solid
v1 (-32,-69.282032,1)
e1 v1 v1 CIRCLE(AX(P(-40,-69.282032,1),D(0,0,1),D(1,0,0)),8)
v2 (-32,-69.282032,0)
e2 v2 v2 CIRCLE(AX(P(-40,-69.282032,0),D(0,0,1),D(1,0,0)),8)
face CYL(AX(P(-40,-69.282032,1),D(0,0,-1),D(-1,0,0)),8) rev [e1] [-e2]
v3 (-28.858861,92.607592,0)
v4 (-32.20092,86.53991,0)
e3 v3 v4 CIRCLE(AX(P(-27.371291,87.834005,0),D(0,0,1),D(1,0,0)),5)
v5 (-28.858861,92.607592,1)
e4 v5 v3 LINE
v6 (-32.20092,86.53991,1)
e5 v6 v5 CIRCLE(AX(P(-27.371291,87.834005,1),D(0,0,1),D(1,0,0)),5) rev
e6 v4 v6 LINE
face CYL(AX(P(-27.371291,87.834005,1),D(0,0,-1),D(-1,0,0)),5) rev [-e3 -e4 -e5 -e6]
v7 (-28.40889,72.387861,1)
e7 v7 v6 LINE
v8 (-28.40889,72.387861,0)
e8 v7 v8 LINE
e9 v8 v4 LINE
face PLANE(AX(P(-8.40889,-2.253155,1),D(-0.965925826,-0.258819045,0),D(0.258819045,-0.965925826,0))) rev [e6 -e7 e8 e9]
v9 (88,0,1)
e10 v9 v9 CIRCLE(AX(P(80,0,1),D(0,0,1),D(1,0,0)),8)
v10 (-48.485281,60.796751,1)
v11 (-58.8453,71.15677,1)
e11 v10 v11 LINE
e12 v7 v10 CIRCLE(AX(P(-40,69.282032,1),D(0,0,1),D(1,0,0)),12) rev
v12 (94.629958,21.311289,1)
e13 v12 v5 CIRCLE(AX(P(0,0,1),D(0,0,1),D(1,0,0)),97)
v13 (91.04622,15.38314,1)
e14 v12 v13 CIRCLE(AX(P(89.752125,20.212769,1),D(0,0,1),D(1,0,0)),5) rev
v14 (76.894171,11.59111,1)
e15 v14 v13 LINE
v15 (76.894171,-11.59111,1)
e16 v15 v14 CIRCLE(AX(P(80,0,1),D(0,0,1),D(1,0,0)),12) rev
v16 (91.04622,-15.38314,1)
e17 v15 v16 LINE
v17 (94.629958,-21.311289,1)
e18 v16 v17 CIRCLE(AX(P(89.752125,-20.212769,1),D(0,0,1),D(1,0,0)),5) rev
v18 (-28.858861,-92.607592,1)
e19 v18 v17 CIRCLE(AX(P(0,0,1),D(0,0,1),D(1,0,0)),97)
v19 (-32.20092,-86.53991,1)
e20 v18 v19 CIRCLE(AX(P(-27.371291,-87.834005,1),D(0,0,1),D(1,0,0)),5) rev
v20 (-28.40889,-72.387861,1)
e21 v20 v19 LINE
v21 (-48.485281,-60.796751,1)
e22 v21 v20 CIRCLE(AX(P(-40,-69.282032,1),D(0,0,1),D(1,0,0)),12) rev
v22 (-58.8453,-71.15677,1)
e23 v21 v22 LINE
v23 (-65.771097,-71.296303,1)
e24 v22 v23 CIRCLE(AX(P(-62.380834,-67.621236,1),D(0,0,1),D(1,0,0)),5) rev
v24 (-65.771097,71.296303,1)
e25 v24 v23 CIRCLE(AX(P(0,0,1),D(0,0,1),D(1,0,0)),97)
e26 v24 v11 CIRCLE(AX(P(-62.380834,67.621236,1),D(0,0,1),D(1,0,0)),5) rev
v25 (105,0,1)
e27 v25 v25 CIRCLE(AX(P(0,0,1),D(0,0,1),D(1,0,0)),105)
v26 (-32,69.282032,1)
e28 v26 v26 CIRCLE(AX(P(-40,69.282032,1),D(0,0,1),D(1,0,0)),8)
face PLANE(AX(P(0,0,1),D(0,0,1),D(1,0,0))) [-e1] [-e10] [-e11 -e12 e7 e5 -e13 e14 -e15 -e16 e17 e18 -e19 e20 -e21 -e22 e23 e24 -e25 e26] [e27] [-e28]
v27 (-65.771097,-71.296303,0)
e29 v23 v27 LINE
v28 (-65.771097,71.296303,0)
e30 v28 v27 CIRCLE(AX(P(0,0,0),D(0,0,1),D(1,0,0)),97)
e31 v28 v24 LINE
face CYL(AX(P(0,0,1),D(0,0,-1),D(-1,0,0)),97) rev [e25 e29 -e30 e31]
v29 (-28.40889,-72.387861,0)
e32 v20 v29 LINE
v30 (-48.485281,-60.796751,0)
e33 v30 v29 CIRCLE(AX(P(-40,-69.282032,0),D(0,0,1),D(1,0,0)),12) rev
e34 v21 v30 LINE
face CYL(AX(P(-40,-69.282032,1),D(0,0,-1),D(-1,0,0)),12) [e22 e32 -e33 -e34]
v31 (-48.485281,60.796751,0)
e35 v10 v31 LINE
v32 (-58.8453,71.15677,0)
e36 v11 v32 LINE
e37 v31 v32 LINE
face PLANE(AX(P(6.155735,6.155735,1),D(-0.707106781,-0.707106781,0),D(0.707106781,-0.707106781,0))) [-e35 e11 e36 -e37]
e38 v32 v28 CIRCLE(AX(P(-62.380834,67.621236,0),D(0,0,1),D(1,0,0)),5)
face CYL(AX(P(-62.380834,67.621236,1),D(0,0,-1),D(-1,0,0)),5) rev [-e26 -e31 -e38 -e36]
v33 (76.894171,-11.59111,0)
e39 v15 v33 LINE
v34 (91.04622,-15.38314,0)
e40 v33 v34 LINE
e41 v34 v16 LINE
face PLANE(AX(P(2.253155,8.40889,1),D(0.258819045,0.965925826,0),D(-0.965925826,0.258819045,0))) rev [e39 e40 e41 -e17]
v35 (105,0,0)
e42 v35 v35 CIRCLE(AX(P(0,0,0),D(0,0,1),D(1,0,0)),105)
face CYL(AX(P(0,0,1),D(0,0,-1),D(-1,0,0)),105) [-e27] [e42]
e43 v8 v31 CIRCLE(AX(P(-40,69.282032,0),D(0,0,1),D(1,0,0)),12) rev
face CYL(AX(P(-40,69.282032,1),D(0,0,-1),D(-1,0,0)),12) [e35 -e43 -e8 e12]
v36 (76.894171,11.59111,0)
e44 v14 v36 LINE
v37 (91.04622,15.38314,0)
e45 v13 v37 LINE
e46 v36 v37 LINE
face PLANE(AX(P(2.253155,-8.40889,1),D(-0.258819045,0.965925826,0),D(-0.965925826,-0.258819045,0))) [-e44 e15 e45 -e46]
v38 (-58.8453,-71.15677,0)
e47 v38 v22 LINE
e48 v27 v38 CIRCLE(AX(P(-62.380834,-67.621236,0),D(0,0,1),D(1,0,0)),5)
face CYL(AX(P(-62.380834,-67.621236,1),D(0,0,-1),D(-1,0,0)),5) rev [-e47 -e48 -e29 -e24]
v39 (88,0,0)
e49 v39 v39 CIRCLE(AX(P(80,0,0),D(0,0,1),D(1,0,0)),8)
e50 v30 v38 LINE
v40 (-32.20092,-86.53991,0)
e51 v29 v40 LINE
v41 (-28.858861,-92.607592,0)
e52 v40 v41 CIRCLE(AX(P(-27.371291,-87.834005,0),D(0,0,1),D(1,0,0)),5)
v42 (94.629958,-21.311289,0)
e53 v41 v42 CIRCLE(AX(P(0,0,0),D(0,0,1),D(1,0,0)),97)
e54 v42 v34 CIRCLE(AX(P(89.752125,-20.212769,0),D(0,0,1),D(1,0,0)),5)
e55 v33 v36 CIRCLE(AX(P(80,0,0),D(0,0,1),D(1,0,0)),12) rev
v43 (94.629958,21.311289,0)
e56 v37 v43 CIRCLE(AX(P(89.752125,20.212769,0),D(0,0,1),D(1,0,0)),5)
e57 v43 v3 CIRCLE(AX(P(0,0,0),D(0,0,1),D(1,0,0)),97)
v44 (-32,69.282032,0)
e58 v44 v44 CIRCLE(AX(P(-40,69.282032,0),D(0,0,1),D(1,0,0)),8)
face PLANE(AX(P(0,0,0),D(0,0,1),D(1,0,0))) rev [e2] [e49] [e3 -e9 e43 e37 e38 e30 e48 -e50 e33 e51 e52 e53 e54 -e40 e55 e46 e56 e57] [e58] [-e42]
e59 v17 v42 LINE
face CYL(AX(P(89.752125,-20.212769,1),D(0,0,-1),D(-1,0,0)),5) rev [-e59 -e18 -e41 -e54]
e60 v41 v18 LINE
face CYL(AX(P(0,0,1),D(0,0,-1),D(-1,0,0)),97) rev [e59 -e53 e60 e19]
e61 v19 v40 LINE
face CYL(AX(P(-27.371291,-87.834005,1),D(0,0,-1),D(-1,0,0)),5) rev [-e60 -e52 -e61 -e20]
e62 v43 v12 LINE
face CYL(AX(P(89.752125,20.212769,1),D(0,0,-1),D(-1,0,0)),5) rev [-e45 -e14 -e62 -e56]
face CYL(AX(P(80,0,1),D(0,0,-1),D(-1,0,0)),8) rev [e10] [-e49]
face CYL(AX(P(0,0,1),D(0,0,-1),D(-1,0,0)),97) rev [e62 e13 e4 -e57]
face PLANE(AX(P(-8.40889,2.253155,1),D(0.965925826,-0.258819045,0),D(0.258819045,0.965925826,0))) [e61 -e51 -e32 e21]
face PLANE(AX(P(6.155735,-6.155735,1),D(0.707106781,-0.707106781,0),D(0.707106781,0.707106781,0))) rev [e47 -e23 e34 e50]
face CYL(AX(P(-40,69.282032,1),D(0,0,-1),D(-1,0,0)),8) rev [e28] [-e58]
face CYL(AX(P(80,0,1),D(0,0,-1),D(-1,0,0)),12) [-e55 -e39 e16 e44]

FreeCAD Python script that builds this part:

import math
import FreeCAD as App
import Part
import Sketcher

V = App.Vector
Q = App.Units.Quantity


def edges_at(feature, points):
    """Names of the edges that pass closest to the given points."""
    edges = feature.Shape.Edges
    near = lambda p: min(range(len(edges)), key=lambda i: edges[i].distToShape(Part.Vertex(*p))[0])
    return sorted({f"Edge{near(p) + 1}" for p in points})

doc = App.newDocument("Part")
body = doc.addObject("PartDesign::Body", "Body")

# Sketch on XY plane
sketch1 = body.newObject("Sketcher::SketchObject", "Sketch")
sketch1.AttachmentSupport = (doc.getObject("XY_Plane"), [""])
sketch1.MapMode = "FlatFace"
sketch1.addGeometry([
    Part.Circle(V(0, 0, 0), V(0, 0, 1), 105),  # 0
    Part.Circle(V(-40, -69.282032, 0), V(0, 0, 1), 8),  # 1
    Part.Circle(V(-40, 69.282032, 0), V(0, 0, 1), 8),  # 2
    Part.ArcOfCircle(Part.Circle(V(0, 0, 0), V(0, 0, 1), 97), math.radians(9.850909), math.radians(110.149091)),  # 3
    Part.LineSegment(V(95.569858, 16.595245, 0), V(76.894171, 11.59111, 0)),  # 4
    Part.ArcOfCircle(Part.Circle(V(80, 0, 0), V(0, 0, 1), 12), math.radians(105), math.radians(255)),  # 5
    Part.LineSegment(V(76.894171, -11.59111, 0), V(95.569858, -16.595245, 0)),  # 6
    Part.ArcOfCircle(Part.Circle(V(0, 0, 0), V(0, 0, 1), 97), math.radians(-110.149091), math.radians(-9.850909)),  # 7
    Part.LineSegment(V(-33.413025, -91.063548, 0), V(-28.40889, -72.387861, 0)),  # 8
    Part.ArcOfCircle(Part.Circle(V(-40, -69.282032, 0), V(0, 0, 1), 12), math.radians(-15), math.radians(135)),  # 9
    Part.LineSegment(V(-48.485281, -60.796751, 0), V(-62.156833, -74.468303, 0)),  # 10
    Part.ArcOfCircle(Part.Circle(V(0, 0, 0), V(0, 0, 1), 97), math.radians(129.850909), math.radians(230.149091)),  # 11
    Part.LineSegment(V(-62.156833, 74.468303, 0), V(-48.485281, 60.796751, 0)),  # 12
    Part.ArcOfCircle(Part.Circle(V(-40, 69.282032, 0), V(0, 0, 1), 12), math.radians(-135), math.radians(15)),  # 13
    Part.LineSegment(V(-28.40889, 72.387861, 0), V(-33.413025, 91.063548, 0)),  # 14
    Part.Circle(V(80, 0, 0), V(0, 0, 1), 8),  # 15
], False)
sketch1.addConstraint([
    Sketcher.Constraint("Coincident", 3, 1, 4, 1),
    Sketcher.Constraint("Tangent", 4, 2, 5, 1),
    Sketcher.Constraint("Tangent", 5, 2, 6, 1),
    Sketcher.Constraint("Coincident", 6, 2, 7, 2),
    Sketcher.Constraint("Coincident", 7, 1, 8, 1),
    Sketcher.Constraint("Tangent", 8, 2, 9, 1),
    Sketcher.Constraint("Tangent", 9, 2, 10, 1),
    Sketcher.Constraint("Coincident", 10, 2, 11, 2),
    Sketcher.Constraint("Coincident", 11, 1, 12, 1),
    Sketcher.Constraint("Tangent", 12, 2, 13, 1),
    Sketcher.Constraint("Tangent", 13, 2, 14, 1),
    Sketcher.Constraint("Coincident", 14, 2, 3, 2),
    Sketcher.Constraint("Coincident", 0, 3, -1, 1),
    Sketcher.Constraint("Coincident", 3, 3, -1, 1),
    Sketcher.Constraint("Coincident", 7, 3, -1, 1),
    Sketcher.Constraint("Coincident", 11, 3, -1, 1),
    Sketcher.Constraint("Coincident", 9, 3, 1, 3),
    Sketcher.Constraint("Coincident", 13, 3, 2, 3),
    Sketcher.Constraint("Coincident", 15, 3, 5, 3),
    Sketcher.Constraint("Equal", 1, 2),
    Sketcher.Constraint("Equal", 3, 7),
    Sketcher.Constraint("Equal", 5, 9),
    Sketcher.Constraint("Equal", 7, 11),
    Sketcher.Constraint("Equal", 9, 13),
    Sketcher.Constraint("Equal", 2, 15),
    Sketcher.Constraint("Symmetric", 1, 3, 2, 3, -1),
    Sketcher.Constraint("Symmetric", 4, 2, 5, 2, -1),
    Sketcher.Constraint("Perpendicular", 6, 8),
    Sketcher.Constraint("Perpendicular", 10, 12),
    Sketcher.Constraint("Perpendicular", 4, 14),
    Sketcher.Constraint("Vertical", 10, 2, 11, 1),
    Sketcher.Constraint("Equal", 6, 8),
    Sketcher.Constraint("Equal", 8, 10),
    Sketcher.Constraint("Diameter", 0, 210.0),
    Sketcher.Constraint("Diameter", 1, 16.0),
    Sketcher.Constraint("Radius", 3, 97.0),
    Sketcher.Constraint("Radius", 5, 12.0),
    Sketcher.Constraint("Angle", 4, Q("-165 deg")),
    Sketcher.Constraint("DistanceX", 1, 3, -1, 1, 40.0),
])
pad1 = body.newObject("PartDesign::Pad", "Pad")
pad1.Profile = sketch1
pad1.Length = 1
doc.recompute()

fillet = body.newObject("PartDesign::Fillet", "Fillet")
fillet.Base = (pad1, edges_at(pad1, [
    (-62.157, 74.468, 0.5),
    (-62.157, -74.468, 0.5),
    (-33.413, -91.064, 0.5),
    (95.57, -16.595, 0.5),
    (95.57, 16.595, 0.5),
    (-33.413, 91.064, 0.5),
]))
fillet.Radius = 5

doc.recompute()
